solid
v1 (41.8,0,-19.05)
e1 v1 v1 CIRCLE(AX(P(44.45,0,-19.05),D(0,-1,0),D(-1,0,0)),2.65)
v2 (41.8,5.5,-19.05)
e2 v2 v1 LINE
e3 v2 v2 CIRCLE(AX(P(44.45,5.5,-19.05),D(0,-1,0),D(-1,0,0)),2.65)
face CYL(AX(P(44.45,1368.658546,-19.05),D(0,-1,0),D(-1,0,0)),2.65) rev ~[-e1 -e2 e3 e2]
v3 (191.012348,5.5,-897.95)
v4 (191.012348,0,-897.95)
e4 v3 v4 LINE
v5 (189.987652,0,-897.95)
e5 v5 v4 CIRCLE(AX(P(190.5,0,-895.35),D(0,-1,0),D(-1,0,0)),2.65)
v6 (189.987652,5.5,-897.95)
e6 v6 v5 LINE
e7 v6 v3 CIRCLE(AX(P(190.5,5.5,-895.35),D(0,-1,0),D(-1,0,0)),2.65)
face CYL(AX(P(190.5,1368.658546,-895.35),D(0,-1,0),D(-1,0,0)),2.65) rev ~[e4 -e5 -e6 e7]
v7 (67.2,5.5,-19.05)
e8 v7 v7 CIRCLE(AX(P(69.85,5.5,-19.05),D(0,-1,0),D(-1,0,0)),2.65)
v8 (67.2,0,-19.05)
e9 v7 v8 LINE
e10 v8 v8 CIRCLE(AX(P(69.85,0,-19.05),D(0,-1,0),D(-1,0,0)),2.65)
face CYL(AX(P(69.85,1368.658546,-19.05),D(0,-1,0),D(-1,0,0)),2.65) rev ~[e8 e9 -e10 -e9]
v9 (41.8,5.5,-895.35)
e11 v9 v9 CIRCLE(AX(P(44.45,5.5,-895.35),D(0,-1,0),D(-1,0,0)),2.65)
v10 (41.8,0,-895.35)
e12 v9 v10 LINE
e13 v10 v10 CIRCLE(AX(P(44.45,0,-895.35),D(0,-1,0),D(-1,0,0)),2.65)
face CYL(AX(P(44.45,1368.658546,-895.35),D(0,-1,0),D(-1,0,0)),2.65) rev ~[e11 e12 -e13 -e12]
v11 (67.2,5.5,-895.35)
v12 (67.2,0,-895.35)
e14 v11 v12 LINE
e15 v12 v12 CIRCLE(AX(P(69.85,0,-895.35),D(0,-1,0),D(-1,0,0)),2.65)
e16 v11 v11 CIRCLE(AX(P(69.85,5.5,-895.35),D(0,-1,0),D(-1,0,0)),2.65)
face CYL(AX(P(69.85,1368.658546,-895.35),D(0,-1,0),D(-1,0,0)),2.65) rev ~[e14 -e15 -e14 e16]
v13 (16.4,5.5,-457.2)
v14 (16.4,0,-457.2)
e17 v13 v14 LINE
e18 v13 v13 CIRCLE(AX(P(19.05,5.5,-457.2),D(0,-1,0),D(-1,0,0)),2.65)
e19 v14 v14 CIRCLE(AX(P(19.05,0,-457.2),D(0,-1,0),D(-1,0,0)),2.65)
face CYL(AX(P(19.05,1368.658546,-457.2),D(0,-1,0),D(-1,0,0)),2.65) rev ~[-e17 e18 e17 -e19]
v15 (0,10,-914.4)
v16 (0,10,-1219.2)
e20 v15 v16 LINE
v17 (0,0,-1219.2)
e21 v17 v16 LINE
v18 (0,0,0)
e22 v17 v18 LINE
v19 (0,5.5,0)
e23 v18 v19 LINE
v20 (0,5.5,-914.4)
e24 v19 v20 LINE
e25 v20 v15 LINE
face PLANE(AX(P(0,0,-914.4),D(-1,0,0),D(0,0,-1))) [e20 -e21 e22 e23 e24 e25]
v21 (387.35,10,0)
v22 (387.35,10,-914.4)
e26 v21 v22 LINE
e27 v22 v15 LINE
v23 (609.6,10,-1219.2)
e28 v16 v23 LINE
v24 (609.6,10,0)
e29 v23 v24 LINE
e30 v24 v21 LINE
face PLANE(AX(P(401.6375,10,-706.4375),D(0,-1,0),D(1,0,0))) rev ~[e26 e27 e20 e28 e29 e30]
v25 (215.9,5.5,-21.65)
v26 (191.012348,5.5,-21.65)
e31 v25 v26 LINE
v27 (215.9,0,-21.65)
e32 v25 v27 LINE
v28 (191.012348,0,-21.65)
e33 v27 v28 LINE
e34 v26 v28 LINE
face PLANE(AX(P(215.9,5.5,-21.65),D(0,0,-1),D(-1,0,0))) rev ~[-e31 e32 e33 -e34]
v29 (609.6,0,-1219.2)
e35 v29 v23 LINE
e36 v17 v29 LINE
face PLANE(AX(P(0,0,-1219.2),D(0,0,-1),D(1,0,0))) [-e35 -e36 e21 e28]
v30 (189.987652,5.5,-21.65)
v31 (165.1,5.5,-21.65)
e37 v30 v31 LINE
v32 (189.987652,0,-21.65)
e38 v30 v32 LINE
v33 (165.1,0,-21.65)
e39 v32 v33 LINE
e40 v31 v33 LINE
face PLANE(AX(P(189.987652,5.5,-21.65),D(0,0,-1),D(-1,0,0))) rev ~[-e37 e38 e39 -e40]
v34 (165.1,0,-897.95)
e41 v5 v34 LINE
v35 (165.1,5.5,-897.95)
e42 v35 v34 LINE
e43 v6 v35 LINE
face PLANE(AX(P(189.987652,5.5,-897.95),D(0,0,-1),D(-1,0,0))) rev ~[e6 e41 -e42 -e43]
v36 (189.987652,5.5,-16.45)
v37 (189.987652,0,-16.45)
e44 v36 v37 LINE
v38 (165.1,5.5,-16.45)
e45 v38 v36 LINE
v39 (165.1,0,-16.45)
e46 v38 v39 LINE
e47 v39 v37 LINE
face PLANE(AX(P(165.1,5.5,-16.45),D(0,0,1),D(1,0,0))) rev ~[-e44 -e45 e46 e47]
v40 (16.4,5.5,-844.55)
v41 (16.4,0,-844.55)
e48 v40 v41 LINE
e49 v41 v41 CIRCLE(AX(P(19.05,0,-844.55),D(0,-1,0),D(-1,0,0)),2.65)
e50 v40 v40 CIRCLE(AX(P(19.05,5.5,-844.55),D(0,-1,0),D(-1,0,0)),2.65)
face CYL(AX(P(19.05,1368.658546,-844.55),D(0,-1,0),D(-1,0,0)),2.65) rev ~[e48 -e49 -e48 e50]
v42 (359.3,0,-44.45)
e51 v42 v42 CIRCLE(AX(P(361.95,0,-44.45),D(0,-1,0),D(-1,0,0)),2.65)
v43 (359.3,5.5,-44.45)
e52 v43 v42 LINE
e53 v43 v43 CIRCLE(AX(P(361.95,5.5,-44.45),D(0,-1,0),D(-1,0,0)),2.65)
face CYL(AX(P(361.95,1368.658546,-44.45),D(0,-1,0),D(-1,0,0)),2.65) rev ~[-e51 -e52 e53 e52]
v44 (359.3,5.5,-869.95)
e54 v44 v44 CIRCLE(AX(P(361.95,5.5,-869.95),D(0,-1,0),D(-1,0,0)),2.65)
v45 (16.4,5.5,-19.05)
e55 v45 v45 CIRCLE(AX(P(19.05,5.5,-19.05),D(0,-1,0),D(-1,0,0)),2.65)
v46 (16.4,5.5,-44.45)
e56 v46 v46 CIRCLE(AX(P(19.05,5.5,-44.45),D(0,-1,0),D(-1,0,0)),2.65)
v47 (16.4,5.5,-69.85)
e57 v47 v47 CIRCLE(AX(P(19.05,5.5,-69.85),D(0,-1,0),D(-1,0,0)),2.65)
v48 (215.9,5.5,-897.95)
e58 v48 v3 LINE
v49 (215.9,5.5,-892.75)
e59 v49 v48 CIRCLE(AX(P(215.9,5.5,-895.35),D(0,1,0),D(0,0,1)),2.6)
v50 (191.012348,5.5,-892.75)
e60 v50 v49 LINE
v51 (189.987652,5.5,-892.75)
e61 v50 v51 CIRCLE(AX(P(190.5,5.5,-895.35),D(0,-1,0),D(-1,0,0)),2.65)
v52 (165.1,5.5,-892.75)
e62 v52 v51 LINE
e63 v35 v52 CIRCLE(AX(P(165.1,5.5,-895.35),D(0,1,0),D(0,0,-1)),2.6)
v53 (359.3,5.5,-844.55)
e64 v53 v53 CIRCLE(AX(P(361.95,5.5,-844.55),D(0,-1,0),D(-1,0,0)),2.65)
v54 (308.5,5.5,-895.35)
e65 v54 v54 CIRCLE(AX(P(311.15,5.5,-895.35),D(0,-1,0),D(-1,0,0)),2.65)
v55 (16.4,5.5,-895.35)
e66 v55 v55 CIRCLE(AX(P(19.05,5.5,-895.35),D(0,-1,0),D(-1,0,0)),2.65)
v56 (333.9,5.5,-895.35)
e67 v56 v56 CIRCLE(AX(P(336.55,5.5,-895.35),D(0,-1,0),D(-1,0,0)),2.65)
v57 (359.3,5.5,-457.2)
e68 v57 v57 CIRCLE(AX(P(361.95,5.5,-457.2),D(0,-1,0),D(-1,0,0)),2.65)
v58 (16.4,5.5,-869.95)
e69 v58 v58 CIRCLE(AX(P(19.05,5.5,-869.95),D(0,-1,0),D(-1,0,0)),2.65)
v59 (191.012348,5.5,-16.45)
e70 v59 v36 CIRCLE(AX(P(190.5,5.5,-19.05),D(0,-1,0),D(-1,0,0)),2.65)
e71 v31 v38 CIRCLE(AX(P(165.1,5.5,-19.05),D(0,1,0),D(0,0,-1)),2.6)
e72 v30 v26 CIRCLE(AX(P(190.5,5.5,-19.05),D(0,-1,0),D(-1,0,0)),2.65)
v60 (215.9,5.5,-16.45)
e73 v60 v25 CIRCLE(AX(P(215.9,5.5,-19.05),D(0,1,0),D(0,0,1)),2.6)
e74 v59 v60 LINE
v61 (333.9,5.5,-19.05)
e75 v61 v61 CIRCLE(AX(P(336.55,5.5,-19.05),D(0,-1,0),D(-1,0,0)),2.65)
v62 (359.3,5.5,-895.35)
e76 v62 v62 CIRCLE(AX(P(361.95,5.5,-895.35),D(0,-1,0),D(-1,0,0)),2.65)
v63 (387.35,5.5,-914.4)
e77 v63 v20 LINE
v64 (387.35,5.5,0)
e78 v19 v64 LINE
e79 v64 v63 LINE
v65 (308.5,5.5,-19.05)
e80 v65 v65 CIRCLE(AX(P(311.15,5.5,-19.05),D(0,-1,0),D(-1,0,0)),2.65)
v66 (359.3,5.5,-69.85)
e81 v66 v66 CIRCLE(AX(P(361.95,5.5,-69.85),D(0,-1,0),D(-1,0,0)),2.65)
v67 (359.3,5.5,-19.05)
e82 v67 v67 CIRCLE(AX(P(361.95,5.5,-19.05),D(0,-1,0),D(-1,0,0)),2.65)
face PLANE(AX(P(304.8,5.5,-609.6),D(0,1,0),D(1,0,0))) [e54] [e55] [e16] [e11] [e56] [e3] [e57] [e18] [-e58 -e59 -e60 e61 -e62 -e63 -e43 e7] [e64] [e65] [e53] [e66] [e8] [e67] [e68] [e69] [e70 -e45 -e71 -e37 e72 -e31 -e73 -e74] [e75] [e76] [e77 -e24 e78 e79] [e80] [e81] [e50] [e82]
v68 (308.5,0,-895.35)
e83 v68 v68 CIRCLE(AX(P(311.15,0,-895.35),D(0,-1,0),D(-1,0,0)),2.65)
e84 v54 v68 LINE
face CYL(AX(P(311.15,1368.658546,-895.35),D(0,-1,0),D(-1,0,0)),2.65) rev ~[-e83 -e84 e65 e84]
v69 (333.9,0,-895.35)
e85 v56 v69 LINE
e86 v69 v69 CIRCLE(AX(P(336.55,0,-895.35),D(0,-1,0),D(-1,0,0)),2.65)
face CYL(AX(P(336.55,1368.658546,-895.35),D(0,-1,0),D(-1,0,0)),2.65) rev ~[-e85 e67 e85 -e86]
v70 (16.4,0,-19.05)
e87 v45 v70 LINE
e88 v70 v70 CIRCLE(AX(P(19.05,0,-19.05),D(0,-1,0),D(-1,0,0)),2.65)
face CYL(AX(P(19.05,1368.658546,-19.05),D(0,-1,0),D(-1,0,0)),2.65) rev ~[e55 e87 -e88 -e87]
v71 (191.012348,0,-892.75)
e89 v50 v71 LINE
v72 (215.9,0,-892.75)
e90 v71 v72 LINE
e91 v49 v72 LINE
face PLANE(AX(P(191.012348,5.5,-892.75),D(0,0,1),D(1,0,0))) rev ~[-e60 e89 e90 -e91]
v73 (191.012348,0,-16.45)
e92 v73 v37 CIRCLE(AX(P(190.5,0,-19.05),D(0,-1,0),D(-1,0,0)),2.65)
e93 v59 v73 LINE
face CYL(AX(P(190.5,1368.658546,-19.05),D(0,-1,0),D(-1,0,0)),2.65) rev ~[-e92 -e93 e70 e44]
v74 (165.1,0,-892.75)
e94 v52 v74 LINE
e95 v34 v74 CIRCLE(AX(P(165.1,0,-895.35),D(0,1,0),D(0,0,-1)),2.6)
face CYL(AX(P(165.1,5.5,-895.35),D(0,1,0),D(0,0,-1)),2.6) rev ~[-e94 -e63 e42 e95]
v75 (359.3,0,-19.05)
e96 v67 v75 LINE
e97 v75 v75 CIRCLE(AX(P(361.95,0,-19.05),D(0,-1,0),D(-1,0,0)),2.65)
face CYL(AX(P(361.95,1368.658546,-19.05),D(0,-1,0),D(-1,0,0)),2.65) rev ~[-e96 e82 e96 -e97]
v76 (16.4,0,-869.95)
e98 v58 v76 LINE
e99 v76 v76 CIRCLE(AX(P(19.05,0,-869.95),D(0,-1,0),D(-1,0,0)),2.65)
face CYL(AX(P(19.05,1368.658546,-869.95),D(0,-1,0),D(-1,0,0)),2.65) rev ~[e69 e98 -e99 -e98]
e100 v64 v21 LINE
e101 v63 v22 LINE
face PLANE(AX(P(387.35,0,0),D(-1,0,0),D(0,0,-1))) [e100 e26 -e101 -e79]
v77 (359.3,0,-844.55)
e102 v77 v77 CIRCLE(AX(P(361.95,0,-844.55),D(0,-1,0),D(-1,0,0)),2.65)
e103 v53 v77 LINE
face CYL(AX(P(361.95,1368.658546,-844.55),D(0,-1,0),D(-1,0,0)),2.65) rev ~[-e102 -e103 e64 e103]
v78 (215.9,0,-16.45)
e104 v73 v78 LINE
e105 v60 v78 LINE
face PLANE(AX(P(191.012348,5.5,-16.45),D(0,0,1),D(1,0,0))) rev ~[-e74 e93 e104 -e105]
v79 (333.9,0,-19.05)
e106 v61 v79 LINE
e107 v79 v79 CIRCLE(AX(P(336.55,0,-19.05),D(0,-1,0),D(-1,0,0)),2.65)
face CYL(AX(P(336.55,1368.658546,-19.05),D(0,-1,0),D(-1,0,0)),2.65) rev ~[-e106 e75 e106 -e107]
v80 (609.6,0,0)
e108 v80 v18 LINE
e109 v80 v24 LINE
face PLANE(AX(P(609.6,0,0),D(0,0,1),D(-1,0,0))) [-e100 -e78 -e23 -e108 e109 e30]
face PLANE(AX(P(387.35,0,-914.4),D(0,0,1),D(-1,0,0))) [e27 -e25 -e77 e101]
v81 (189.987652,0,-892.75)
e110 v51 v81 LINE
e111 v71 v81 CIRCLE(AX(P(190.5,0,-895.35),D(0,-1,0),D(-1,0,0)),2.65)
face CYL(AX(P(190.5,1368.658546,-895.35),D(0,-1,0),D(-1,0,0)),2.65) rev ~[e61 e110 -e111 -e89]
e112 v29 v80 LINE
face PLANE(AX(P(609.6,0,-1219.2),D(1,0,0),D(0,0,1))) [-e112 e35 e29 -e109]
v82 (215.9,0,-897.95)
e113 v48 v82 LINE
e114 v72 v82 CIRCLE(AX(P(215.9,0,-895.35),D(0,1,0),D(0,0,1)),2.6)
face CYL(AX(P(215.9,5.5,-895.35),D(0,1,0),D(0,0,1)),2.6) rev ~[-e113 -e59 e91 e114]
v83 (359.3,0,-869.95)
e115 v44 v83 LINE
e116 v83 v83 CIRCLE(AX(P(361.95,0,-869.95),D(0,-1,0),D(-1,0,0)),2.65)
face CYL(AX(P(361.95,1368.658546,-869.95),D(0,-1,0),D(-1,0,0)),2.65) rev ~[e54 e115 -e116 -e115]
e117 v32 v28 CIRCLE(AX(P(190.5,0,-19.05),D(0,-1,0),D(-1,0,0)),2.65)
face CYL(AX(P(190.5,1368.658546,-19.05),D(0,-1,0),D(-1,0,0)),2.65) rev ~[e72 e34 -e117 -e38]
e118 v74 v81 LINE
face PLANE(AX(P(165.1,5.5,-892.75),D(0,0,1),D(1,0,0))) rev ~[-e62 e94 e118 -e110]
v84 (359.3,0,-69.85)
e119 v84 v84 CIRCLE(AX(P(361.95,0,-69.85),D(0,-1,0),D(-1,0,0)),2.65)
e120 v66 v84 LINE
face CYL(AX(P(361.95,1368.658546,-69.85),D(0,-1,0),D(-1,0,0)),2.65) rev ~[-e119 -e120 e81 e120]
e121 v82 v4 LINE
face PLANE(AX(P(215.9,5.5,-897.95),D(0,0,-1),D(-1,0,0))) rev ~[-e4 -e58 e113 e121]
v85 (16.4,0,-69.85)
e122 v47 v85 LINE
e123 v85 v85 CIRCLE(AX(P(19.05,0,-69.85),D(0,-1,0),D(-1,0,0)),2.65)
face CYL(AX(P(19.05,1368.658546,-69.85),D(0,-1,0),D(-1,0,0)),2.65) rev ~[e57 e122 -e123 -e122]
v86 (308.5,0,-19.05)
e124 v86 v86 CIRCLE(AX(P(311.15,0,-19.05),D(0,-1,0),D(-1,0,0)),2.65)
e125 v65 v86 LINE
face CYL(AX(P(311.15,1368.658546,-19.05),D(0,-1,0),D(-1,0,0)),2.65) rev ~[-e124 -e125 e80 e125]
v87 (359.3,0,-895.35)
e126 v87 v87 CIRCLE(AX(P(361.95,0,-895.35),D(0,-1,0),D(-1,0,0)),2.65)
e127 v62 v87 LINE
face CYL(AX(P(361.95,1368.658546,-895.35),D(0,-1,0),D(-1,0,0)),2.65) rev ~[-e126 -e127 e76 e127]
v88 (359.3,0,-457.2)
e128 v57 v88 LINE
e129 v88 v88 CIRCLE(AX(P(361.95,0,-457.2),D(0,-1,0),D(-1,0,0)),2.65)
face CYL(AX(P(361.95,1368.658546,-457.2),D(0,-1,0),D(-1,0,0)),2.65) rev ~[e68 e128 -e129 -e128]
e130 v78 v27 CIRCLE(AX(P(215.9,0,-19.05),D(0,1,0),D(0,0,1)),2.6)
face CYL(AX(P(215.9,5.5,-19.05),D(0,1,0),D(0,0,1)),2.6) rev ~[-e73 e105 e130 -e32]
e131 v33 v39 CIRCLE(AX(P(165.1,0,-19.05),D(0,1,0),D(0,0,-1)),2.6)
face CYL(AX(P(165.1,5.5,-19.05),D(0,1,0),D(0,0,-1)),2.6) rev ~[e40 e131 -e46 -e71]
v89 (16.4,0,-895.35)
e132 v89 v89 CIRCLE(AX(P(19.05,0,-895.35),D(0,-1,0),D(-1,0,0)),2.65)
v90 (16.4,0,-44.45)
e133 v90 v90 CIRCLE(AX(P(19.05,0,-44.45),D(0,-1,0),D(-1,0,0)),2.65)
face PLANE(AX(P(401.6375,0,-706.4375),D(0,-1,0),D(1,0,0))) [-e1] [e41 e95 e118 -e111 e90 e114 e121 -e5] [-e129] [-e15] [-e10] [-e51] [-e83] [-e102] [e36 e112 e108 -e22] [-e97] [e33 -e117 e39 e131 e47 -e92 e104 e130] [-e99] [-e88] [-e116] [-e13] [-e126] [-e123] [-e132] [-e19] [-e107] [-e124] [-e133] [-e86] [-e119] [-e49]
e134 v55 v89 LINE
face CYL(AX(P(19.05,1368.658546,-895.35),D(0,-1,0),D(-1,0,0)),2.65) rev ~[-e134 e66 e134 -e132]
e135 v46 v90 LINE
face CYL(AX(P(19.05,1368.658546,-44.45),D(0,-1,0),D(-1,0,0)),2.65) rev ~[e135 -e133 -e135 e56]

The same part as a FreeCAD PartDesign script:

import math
import FreeCAD as App
import Part
import Sketcher

V = App.Vector
Q = App.Units.Quantity

doc = App.newDocument("Part")
params = doc.addObject("Spreadsheet::Sheet", "Params")
for row, (alias, value) in enumerate([
    ("sketch1_width", "24 in"),
    ("sketch1_height", "48 in"),
    ("pad1_length", "5.5 mm"),
    ("sketch2_width", "24 in"),
    ("sketch2_height", "36 in"),
    ("sketch2_height2", "48 in"),
    ("sketch2_width2", "8.75 in"),
    ("pad2_length", "0.25 in"),
    ("hole_diameter", "5.3 mm"),
    ("sketch4_width", "24 in"),
    ("sketch4_height", "12 in"),
    ("sketch4_height2", "36 in"),
    ("sketch4_width2", "15.25 in"),
    ("sketch6_width", "24 in"),
    ("sketch6_height", "48 in"),
    ("sketch6_height2", "36 in"),
    ("sketch6_width2", "8.75 in"),
    ("pad3_length", "10 mm"),
], start=1):
    params.set(f"A{row}", alias)
    params.set(f"B{row}", "=" + value)
    params.setAlias(f"B{row}", alias)

body = doc.addObject("PartDesign::Body", "Body")

# Sketch on XZ plane
sketch1 = body.newObject("Sketcher::SketchObject", "Sketch")
sketch1.AttachmentSupport = (doc.getObject("XZ_Plane"), [""])
sketch1.MapMode = "FlatFace"
sketch1.addGeometry(Part.LineSegment(V(0, -1219, 0), V(0, 0, 0)), False)
sketch1.addGeometry(Part.LineSegment(V(0, 0, 0), V(610, 0, 0)), False)
sketch1.addGeometry(Part.LineSegment(V(610, 0, 0), V(610, -1219, 0)), False)
sketch1.addGeometry(Part.LineSegment(V(610, -1219, 0), V(0, -1219, 0)), False)
sketch1.addConstraint(Sketcher.Constraint("Coincident", 0, 2, 1, 1))
sketch1.addConstraint(Sketcher.Constraint("Coincident", 1, 2, 2, 1))
sketch1.addConstraint(Sketcher.Constraint("Coincident", 2, 2, 3, 1))
sketch1.addConstraint(Sketcher.Constraint("Coincident", 3, 2, 0, 1))
sketch1.addConstraint(Sketcher.Constraint("Vertical", 0))
sketch1.addConstraint(Sketcher.Constraint("Horizontal", 1))
sketch1.addConstraint(Sketcher.Constraint("Vertical", 2))
sketch1.addConstraint(Sketcher.Constraint("Horizontal", 3))
sketch1.addConstraint(Sketcher.Constraint("Coincident", 0, 2, -1, 1))
sketch1.addConstraint(Sketcher.Constraint("DistanceX", 1, 1, 1, 2, Q("24 in")))
sketch1.addConstraint(Sketcher.Constraint("DistanceY", 0, 1, 0, 2, Q("48 in")))
sketch1.setExpression("Constraints[9]", "Params.sketch1_width")
sketch1.setExpression("Constraints[10]", "Params.sketch1_height")
pad1 = body.newObject("PartDesign::Pad", "Pad")
pad1.Profile = sketch1
pad1.setExpression("Length", "Params.pad1_length")
pad1.Reversed = True

# Sketch on XZ plane
sketch2 = body.newObject("Sketcher::SketchObject", "Sketch001")
sketch2.AttachmentSupport = (doc.getObject("XZ_Plane"), [""])
sketch2.MapMode = "FlatFace"
sketch2.AttachmentOffset = App.Placement(V(0, 0, -5.5), App.Rotation())
sketch2.addGeometry(Part.LineSegment(V(387, -914, 0), V(387, 0, 0)), False)
sketch2.addGeometry(Part.LineSegment(V(387, 0, 0), V(610, 0, 0)), False)
sketch2.addGeometry(Part.LineSegment(V(610, 0, 0), V(610, -1219, 0)), False)
sketch2.addGeometry(Part.LineSegment(V(610, -1219, 0), V(0, -1219, 0)), False)
sketch2.addGeometry(Part.LineSegment(V(0, -1219, 0), V(0, -914, 0)), False)
sketch2.addGeometry(Part.LineSegment(V(0, -914, 0), V(387, -914, 0)), False)
sketch2.addConstraint(Sketcher.Constraint("Coincident", 0, 2, 1, 1))
sketch2.addConstraint(Sketcher.Constraint("Coincident", 1, 2, 2, 1))
sketch2.addConstraint(Sketcher.Constraint("Coincident", 2, 2, 3, 1))
sketch2.addConstraint(Sketcher.Constraint("Coincident", 3, 2, 4, 1))
sketch2.addConstraint(Sketcher.Constraint("Coincident", 4, 2, 5, 1))
sketch2.addConstraint(Sketcher.Constraint("Coincident", 5, 2, 0, 1))
sketch2.addConstraint(Sketcher.Constraint("Vertical", 0))
sketch2.addConstraint(Sketcher.Constraint("Horizontal", 1))
sketch2.addConstraint(Sketcher.Constraint("Vertical", 2))
sketch2.addConstraint(Sketcher.Constraint("Horizontal", 3))
sketch2.addConstraint(Sketcher.Constraint("Vertical", 4))
sketch2.addConstraint(Sketcher.Constraint("Horizontal", 5))
sketch2.addConstraint(Sketcher.Constraint("PointOnObject", 0, 2, -1))
sketch2.addConstraint(Sketcher.Constraint("PointOnObject", 3, 2, -2))
sketch2.addConstraint(Sketcher.Constraint("DistanceX", 3, 2, 3, 1, Q("24 in")))
sketch2.addConstraint(Sketcher.Constraint("DistanceY", 0, 1, 0, 2, Q("36 in")))
sketch2.addConstraint(Sketcher.Constraint("DistanceY", 2, 2, 2, 1, Q("48 in")))
sketch2.addConstraint(Sketcher.Constraint("DistanceX", 1, 1, 1, 2, Q("8.75 in")))
sketch2.setExpression("Constraints[14]", "Params.sketch2_width")
sketch2.setExpression("Constraints[15]", "Params.sketch2_height")
sketch2.setExpression("Constraints[16]", "Params.sketch2_height2")
sketch2.setExpression("Constraints[17]", "Params.sketch2_width2")
pad2 = body.newObject("PartDesign::Pad", "Pad001")
pad2.Profile = sketch2
pad2.setExpression("Length", "Params.pad2_length")
pad2.Reversed = True

# Sketch on XZ plane
sketch3 = body.newObject("Sketcher::SketchObject", "Sketch002")
sketch3.AttachmentSupport = (doc.getObject("XZ_Plane"), [""])
sketch3.MapMode = "FlatFace"
sketch3.AttachmentOffset = App.Placement(V(0, 0, -5.5), App.Rotation())
sketch3.addGeometry(Part.Circle(V(19.1, -895.4, 0), V(0, 0, 1), 2.6), False)
sketch3.addGeometry(Part.Circle(V(44.5, -895.4, 0), V(0, 0, 1), 2.6), False)
sketch3.addGeometry(Part.Circle(V(69.8, -895.4, 0), V(0, 0, 1), 2.6), False)
sketch3.addGeometry(Part.Circle(V(19.1, -870, 0), V(0, 0, 1), 2.6), False)
sketch3.addGeometry(Part.Circle(V(19.1, -844.5, 0), V(0, 0, 1), 2.6), False)
sketch3.addGeometry(Part.Circle(V(19.1, -457.2, 0), V(0, 0, 1), 2.6), False)
sketch3.addGeometry(Part.Circle(V(19.1, -69.8, 0), V(0, 0, 1), 2.6), False)
sketch3.addGeometry(Part.Circle(V(19.1, -44.5, 0), V(0, 0, 1), 2.6), False)
sketch3.addGeometry(Part.Circle(V(19.1, -19.1, 0), V(0, 0, 1), 2.6), False)
sketch3.addGeometry(Part.Circle(V(44.5, -19.1, 0), V(0, 0, 1), 2.6), False)
sketch3.addGeometry(Part.Circle(V(69.8, -19.1, 0), V(0, 0, 1), 2.6), False)
sketch3.addGeometry(Part.Circle(V(190.5, -19.1, 0), V(0, 0, 1), 2.6), False)
sketch3.addGeometry(Part.Circle(V(311.1, -19.1, 0), V(0, 0, 1), 2.6), False)
sketch3.addGeometry(Part.Circle(V(336.6, -19.1, 0), V(0, 0, 1), 2.6), False)
sketch3.addGeometry(Part.Circle(V(361.9, -19.1, 0), V(0, 0, 1), 2.6), False)
sketch3.addGeometry(Part.Circle(V(361.9, -44.5, 0), V(0, 0, 1), 2.6), False)
sketch3.addGeometry(Part.Circle(V(361.9, -69.8, 0), V(0, 0, 1), 2.6), False)
sketch3.addGeometry(Part.Circle(V(361.9, -457.2, 0), V(0, 0, 1), 2.6), False)
sketch3.addGeometry(Part.Circle(V(361.9, -844.5, 0), V(0, 0, 1), 2.6), False)
sketch3.addGeometry(Part.Circle(V(361.9, -870, 0), V(0, 0, 1), 2.6), False)
sketch3.addGeometry(Part.Circle(V(361.9, -895.4, 0), V(0, 0, 1), 2.6), False)
sketch3.addGeometry(Part.Circle(V(336.6, -895.4, 0), V(0, 0, 1), 2.6), False)
sketch3.addGeometry(Part.Circle(V(311.1, -895.4, 0), V(0, 0, 1), 2.6), False)
sketch3.addGeometry(Part.Circle(V(190.5, -895.4, 0), V(0, 0, 1), 2.6), False)
sketch3.addConstraint(Sketcher.Constraint("Equal", 0, 1))
sketch3.addConstraint(Sketcher.Constraint("Equal", 1, 2))
sketch3.addConstraint(Sketcher.Constraint("Equal", 2, 3))
sketch3.addConstraint(Sketcher.Constraint("Equal", 3, 4))
sketch3.addConstraint(Sketcher.Constraint("Equal", 4, 5))
sketch3.addConstraint(Sketcher.Constraint("Equal", 5, 6))
sketch3.addConstraint(Sketcher.Constraint("Equal", 6, 7))
sketch3.addConstraint(Sketcher.Constraint("Equal", 7, 8))
sketch3.addConstraint(Sketcher.Constraint("Equal", 8, 9))
sketch3.addConstraint(Sketcher.Constraint("Equal", 9, 10))
sketch3.addConstraint(Sketcher.Constraint("Equal", 10, 11))
sketch3.addConstraint(Sketcher.Constraint("Equal", 11, 12))
sketch3.addConstraint(Sketcher.Constraint("Equal", 12, 13))
sketch3.addConstraint(Sketcher.Constraint("Equal", 13, 14))
sketch3.addConstraint(Sketcher.Constraint("Equal", 14, 15))
sketch3.addConstraint(Sketcher.Constraint("Equal", 15, 16))
sketch3.addConstraint(Sketcher.Constraint("Equal", 16, 17))
sketch3.addConstraint(Sketcher.Constraint("Equal", 17, 18))
sketch3.addConstraint(Sketcher.Constraint("Equal", 18, 19))
sketch3.addConstraint(Sketcher.Constraint("Equal", 19, 20))
sketch3.addConstraint(Sketcher.Constraint("Equal", 20, 21))
sketch3.addConstraint(Sketcher.Constraint("Equal", 21, 22))
sketch3.addConstraint(Sketcher.Constraint("Equal", 22, 23))
sketch3.addConstraint(Sketcher.Constraint("Horizontal", 0, 3, 1, 3))
sketch3.addConstraint(Sketcher.Constraint("Horizontal", 1, 3, 2, 3))
sketch3.addConstraint(Sketcher.Constraint("Horizontal", 8, 3, 9, 3))
sketch3.addConstraint(Sketcher.Constraint("Horizontal", 9, 3, 10, 3))
sketch3.addConstraint(Sketcher.Constraint("Horizontal", 10, 3, 11, 3))
sketch3.addConstraint(Sketcher.Constraint("Horizontal", 11, 3, 12, 3))
sketch3.addConstraint(Sketcher.Constraint("Horizontal", 12, 3, 13, 3))
sketch3.addConstraint(Sketcher.Constraint("Horizontal", 13, 3, 14, 3))
sketch3.addConstraint(Sketcher.Constraint("Horizontal", 7, 3, 15, 3))
sketch3.addConstraint(Sketcher.Constraint("Horizontal", 6, 3, 16, 3))
sketch3.addConstraint(Sketcher.Constraint("Horizontal", 5, 3, 17, 3))
sketch3.addConstraint(Sketcher.Constraint("Horizontal", 4, 3, 18, 3))
sketch3.addConstraint(Sketcher.Constraint("Horizontal", 3, 3, 19, 3))
sketch3.addConstraint(Sketcher.Constraint("Horizontal", 2, 3, 20, 3))
sketch3.addConstraint(Sketcher.Constraint("Horizontal", 20, 3, 21, 3))
sketch3.addConstraint(Sketcher.Constraint("Horizontal", 21, 3, 22, 3))
sketch3.addConstraint(Sketcher.Constraint("Horizontal", 22, 3, 23, 3))
sketch3.addConstraint(Sketcher.Constraint("Vertical", 0, 3, 3, 3))
sketch3.addConstraint(Sketcher.Constraint("Vertical", 3, 3, 4, 3))
sketch3.addConstraint(Sketcher.Constraint("Vertical", 4, 3, 5, 3))
sketch3.addConstraint(Sketcher.Constraint("Vertical", 5, 3, 6, 3))
sketch3.addConstraint(Sketcher.Constraint("Vertical", 6, 3, 7, 3))
sketch3.addConstraint(Sketcher.Constraint("Vertical", 7, 3, 8, 3))
sketch3.addConstraint(Sketcher.Constraint("Vertical", 1, 3, 9, 3))
sketch3.addConstraint(Sketcher.Constraint("Vertical", 2, 3, 10, 3))
sketch3.addConstraint(Sketcher.Constraint("Vertical", 14, 3, 15, 3))
sketch3.addConstraint(Sketcher.Constraint("Vertical", 15, 3, 16, 3))
sketch3.addConstraint(Sketcher.Constraint("Vertical", 16, 3, 17, 3))
sketch3.addConstraint(Sketcher.Constraint("Vertical", 17, 3, 18, 3))
sketch3.addConstraint(Sketcher.Constraint("Vertical", 18, 3, 19, 3))
sketch3.addConstraint(Sketcher.Constraint("Vertical", 19, 3, 20, 3))
sketch3.addConstraint(Sketcher.Constraint("Vertical", 13, 3, 21, 3))
sketch3.addConstraint(Sketcher.Constraint("Vertical", 12, 3, 22, 3))
sketch3.addConstraint(Sketcher.Constraint("Vertical", 11, 3, 23, 3))
sketch3.addConstraint(Sketcher.Constraint("DistanceY", 5, 3, -1, 1, Q("18 in")))
sketch3.addConstraint(Sketcher.Constraint("DistanceX", 0, 3, 1, 3, Q("1 in")))
sketch3.addConstraint(Sketcher.Constraint("DistanceX", 1, 3, 2, 3, Q("1 in")))
sketch3.addConstraint(Sketcher.Constraint("DistanceY", 0, 3, 3, 3, Q("1 in")))
sketch3.addConstraint(Sketcher.Constraint("DistanceY", 3, 3, 4, 3, Q("1 in")))
sketch3.addConstraint(Sketcher.Constraint("DistanceY", 6, 3, 7, 3, Q("1 in")))
sketch3.addConstraint(Sketcher.Constraint("DistanceY", 7, 3, 8, 3, Q("1 in")))
sketch3.addConstraint(Sketcher.Constraint("DistanceX", 12, 3, 13, 3, Q("1 in")))
sketch3.addConstraint(Sketcher.Constraint("DistanceX", 13, 3, 14, 3, Q("1 in")))
sketch3.addConstraint(Sketcher.Constraint("DistanceX", -1, 1, 11, 3, Q("7.5 in")))
sketch3.addConstraint(Sketcher.Constraint("DistanceY", 4, 3, 6, 3, Q("30.5 in")))
sketch3.addConstraint(Sketcher.Constraint("DistanceX", 10, 3, 12, 3, Q("9.5 in")))
sketch3.addConstraint(Sketcher.Constraint("Diameter", 0, Q("5.3 mm")))
sketch3.addConstraint(Sketcher.Constraint("DistanceX", -1, 1, 0, 3, Q("0.75 in")))
sketch3.addConstraint(Sketcher.Constraint("DistanceY", 0, 3, -1, 1, Q("35.25 in")))
doc.recompute()
hole = body.newObject("PartDesign::Hole", "Hole")
hole.Profile = sketch3
hole.ThreadType = "None"
hole.setExpression("Diameter", "Params.hole_diameter")
hole.DepthType = "ThroughAll"
hole.Reversed = True

# Sketch on XZ plane
sketch4 = body.newObject("Sketcher::SketchObject", "Sketch003")
sketch4.AttachmentSupport = (doc.getObject("XZ_Plane"), [""])
sketch4.MapMode = "FlatFace"
sketch4.AttachmentOffset = App.Placement(V(0, 0, -11.85), App.Rotation())
sketch4.addGeometry(Part.LineSegment(V(0, -1219, 0), V(0, -914, 0)), False)
sketch4.addGeometry(Part.LineSegment(V(0, -914, 0), V(387, -914, 0)), False)
sketch4.addGeometry(Part.LineSegment(V(387, -914, 0), V(387, 0, 0)), False)
sketch4.addGeometry(Part.LineSegment(V(387, 0, 0), V(610, 0, 0)), False)
sketch4.addGeometry(Part.LineSegment(V(610, 0, 0), V(610, -1219, 0)), False)
sketch4.addGeometry(Part.LineSegment(V(610, -1219, 0), V(0, -1219, 0)), False)
sketch4.addConstraint(Sketcher.Constraint("Coincident", 0, 2, 1, 1))
sketch4.addConstraint(Sketcher.Constraint("Coincident", 1, 2, 2, 1))
sketch4.addConstraint(Sketcher.Constraint("Coincident", 2, 2, 3, 1))
sketch4.addConstraint(Sketcher.Constraint("Coincident", 3, 2, 4, 1))
sketch4.addConstraint(Sketcher.Constraint("Coincident", 4, 2, 5, 1))
sketch4.addConstraint(Sketcher.Constraint("Coincident", 5, 2, 0, 1))
sketch4.addConstraint(Sketcher.Constraint("Vertical", 0))
sketch4.addConstraint(Sketcher.Constraint("Horizontal", 1))
sketch4.addConstraint(Sketcher.Constraint("Vertical", 2))
sketch4.addConstraint(Sketcher.Constraint("Horizontal", 3))
sketch4.addConstraint(Sketcher.Constraint("Vertical", 4))
sketch4.addConstraint(Sketcher.Constraint("Horizontal", 5))
sketch4.addConstraint(Sketcher.Constraint("PointOnObject", 0, 2, -2))
sketch4.addConstraint(Sketcher.Constraint("PointOnObject", 2, 2, -1))
sketch4.addConstraint(Sketcher.Constraint("DistanceX", 5, 2, 5, 1, Q("24 in")))
sketch4.addConstraint(Sketcher.Constraint("DistanceY", 0, 1, 0, 2, Q("12 in")))
sketch4.addConstraint(Sketcher.Constraint("DistanceY", 2, 1, 2, 2, Q("36 in")))
sketch4.addConstraint(Sketcher.Constraint("DistanceX", 1, 1, 1, 2, Q("15.25 in")))
sketch4.setExpression("Constraints[14]", "Params.sketch4_width")
sketch4.setExpression("Constraints[15]", "Params.sketch4_height")
sketch4.setExpression("Constraints[16]", "Params.sketch4_height2")
sketch4.setExpression("Constraints[17]", "Params.sketch4_width2")
pocket1 = body.newObject("PartDesign::Pocket", "Pocket")
pocket1.Profile = sketch4
pocket1.Type = "UpToFirst"
pocket1.Reversed = True

# Sketch on XZ plane
sketch5 = body.newObject("Sketcher::SketchObject", "Sketch004")
sketch5.AttachmentSupport = (doc.getObject("XZ_Plane"), [""])
sketch5.MapMode = "FlatFace"
sketch5.AttachmentOffset = App.Placement(V(0, 0, -5.5), App.Rotation())
sketch5.addGeometry(Part.ArcOfCircle(Part.Circle(V(190.5, -19.1, 0), V(0, 0, 1), 2.6), math.radians(101), math.radians(259)), False)
sketch5.addGeometry(Part.LineSegment(V(190, -21.6, 0), V(165.1, -21.6, 0)), False)
sketch5.addGeometry(Part.ArcOfCircle(Part.Circle(V(165.1, -19.1, 0), V(0, 0, 1), 2.6), math.radians(90), math.radians(270)), False)
sketch5.addGeometry(Part.LineSegment(V(165.1, -16.4, 0), V(190, -16.4, 0)), False)
sketch5.addGeometry(Part.Circle(V(190.5, -19.1, 0), V(0, 0, 1), 2.6), False)
sketch5.addGeometry(Part.LineSegment(V(215.9, -21.6, 0), V(191, -21.6, 0)), False)
sketch5.addGeometry(Part.ArcOfCircle(Part.Circle(V(190.5, -19, 0), V(0, 0, 1), 2.7), math.radians(-79), math.radians(0)), False)
sketch5.addGeometry(Part.ArcOfCircle(Part.Circle(V(190.5, -19.1, 0), V(0, 0, 1), 2.7), math.radians(0), math.radians(79)), False)
sketch5.addGeometry(Part.LineSegment(V(191, -16.4, 0), V(215.9, -16.4, 0)), False)
sketch5.addGeometry(Part.ArcOfCircle(Part.Circle(V(215.9, -19.1, 0), V(0, 0, 1), 2.6), math.radians(-90), math.radians(90)), False)
sketch5.addGeometry(Part.ArcOfCircle(Part.Circle(V(165.1, -895.4, 0), V(0, 0, 1), 2.6), math.radians(90), math.radians(270)), False)
sketch5.addGeometry(Part.LineSegment(V(165.1, -892.8, 0), V(190, -892.8, 0)), False)
sketch5.addGeometry(Part.ArcOfCircle(Part.Circle(V(190.5, -895.4, 0), V(0, 0, 1), 2.6), math.radians(101), math.radians(259)), False)
sketch5.addGeometry(Part.LineSegment(V(190, -898, 0), V(165.1, -898, 0)), False)
sketch5.addGeometry(Part.Circle(V(190.5, -895.4, 0), V(0, 0, 1), 2.6), False)
sketch5.addGeometry(Part.ArcOfCircle(Part.Circle(V(190.5, -895.4, 0), V(0, 0, 1), 2.7), math.radians(0), math.radians(79)), False)
sketch5.addGeometry(Part.LineSegment(V(191, -892.8, 0), V(215.9, -892.8, 0)), False)
sketch5.addGeometry(Part.ArcOfCircle(Part.Circle(V(215.9, -895.4, 0), V(0, 0, 1), 2.6), math.radians(-90), math.radians(90)), False)
sketch5.addGeometry(Part.LineSegment(V(215.9, -898, 0), V(191, -898, 0)), False)
sketch5.addGeometry(Part.ArcOfCircle(Part.Circle(V(190.5, -895.3, 0), V(0, 0, 1), 2.7), math.radians(-79), math.radians(0)), False)
sketch5.addConstraint(Sketcher.Constraint("Coincident", 0, 2, 1, 1))
sketch5.addConstraint(Sketcher.Constraint("Tangent", 1, 2, 2, 2))
sketch5.addConstraint(Sketcher.Constraint("Tangent", 2, 1, 3, 1))
sketch5.addConstraint(Sketcher.Constraint("Coincident", 3, 2, 0, 1))
sketch5.addConstraint(Sketcher.Constraint("Coincident", 5, 2, 6, 1))
sketch5.addConstraint(Sketcher.Constraint("Tangent", 6, 2, 7, 1))
sketch5.addConstraint(Sketcher.Constraint("Coincident", 7, 2, 8, 1))
sketch5.addConstraint(Sketcher.Constraint("Tangent", 8, 2, 9, 2))
sketch5.addConstraint(Sketcher.Constraint("Tangent", 9, 1, 5, 1))
sketch5.addConstraint(Sketcher.Constraint("Tangent", 10, 1, 11, 1))
sketch5.addConstraint(Sketcher.Constraint("Coincident", 11, 2, 12, 1))
sketch5.addConstraint(Sketcher.Constraint("Coincident", 12, 2, 13, 1))
sketch5.addConstraint(Sketcher.Constraint("Tangent", 13, 2, 10, 2))
sketch5.addConstraint(Sketcher.Constraint("Coincident", 15, 2, 16, 1))
sketch5.addConstraint(Sketcher.Constraint("Tangent", 16, 2, 17, 2))
sketch5.addConstraint(Sketcher.Constraint("Tangent", 17, 1, 18, 1))
sketch5.addConstraint(Sketcher.Constraint("Coincident", 18, 2, 19, 1))
sketch5.addConstraint(Sketcher.Constraint("Tangent", 19, 2, 15, 1))
sketch5.addConstraint(Sketcher.Constraint("Horizontal", 1))
sketch5.addConstraint(Sketcher.Constraint("Horizontal", 3))
sketch5.addConstraint(Sketcher.Constraint("Horizontal", 5))
sketch5.addConstraint(Sketcher.Constraint("Horizontal", 8))
sketch5.addConstraint(Sketcher.Constraint("Horizontal", 11))
sketch5.addConstraint(Sketcher.Constraint("Horizontal", 13))
sketch5.addConstraint(Sketcher.Constraint("Horizontal", 16))
sketch5.addConstraint(Sketcher.Constraint("Horizontal", 18))
sketch5.addConstraint(Sketcher.Constraint("Coincident", 4, 3, 0, 3))
sketch5.addConstraint(Sketcher.Constraint("Coincident", 6, 3, 0, 3))
sketch5.addConstraint(Sketcher.Constraint("Coincident", 14, 3, 12, 3))
sketch5.addConstraint(Sketcher.Constraint("Coincident", 15, 3, 12, 3))
sketch5.addConstraint(Sketcher.Constraint("Equal", 2, 4))
sketch5.addConstraint(Sketcher.Constraint("Equal", 0, 6))
sketch5.addConstraint(Sketcher.Constraint("Equal", 6, 7))
sketch5.addConstraint(Sketcher.Constraint("Equal", 4, 9))
sketch5.addConstraint(Sketcher.Constraint("Equal", 9, 10))
sketch5.addConstraint(Sketcher.Constraint("Equal", 7, 12))
sketch5.addConstraint(Sketcher.Constraint("Equal", 10, 14))
sketch5.addConstraint(Sketcher.Constraint("Equal", 12, 15))
sketch5.addConstraint(Sketcher.Constraint("Equal", 14, 17))
sketch5.addConstraint(Sketcher.Constraint("Equal", 15, 19))
sketch5.addConstraint(Sketcher.Constraint("Horizontal", 0, 3, 2, 3))
sketch5.addConstraint(Sketcher.Constraint("Horizontal", 7, 3, 9, 3))
sketch5.addConstraint(Sketcher.Constraint("Horizontal", 10, 3, 12, 3))
sketch5.addConstraint(Sketcher.Constraint("Horizontal", 15, 3, 17, 3))
sketch5.addConstraint(Sketcher.Constraint("Horizontal", 9, 3, 6, 2))
sketch5.addConstraint(Sketcher.Constraint("Horizontal", 17, 3, 19, 2))
sketch5.addConstraint(Sketcher.Constraint("Vertical", 2, 3, 10, 3))
sketch5.addConstraint(Sketcher.Constraint("Vertical", 7, 3, 12, 3))
sketch5.addConstraint(Sketcher.Constraint("Vertical", 9, 3, 17, 3))
sketch5.addConstraint(Sketcher.Constraint("Equal", 3, 5))
sketch5.addConstraint(Sketcher.Constraint("DistanceX", 2, 3, 0, 3, Q("1 in")))
sketch5.addConstraint(Sketcher.Constraint("DistanceX", -1, 1, 0, 3, Q("7.5 in")))
sketch5.addConstraint(Sketcher.Constraint("DistanceY", 10, 3, 2, 3, Q("34.5 in")))
sketch5.addConstraint(Sketcher.Constraint("Diameter", 4, Q("5.2 mm")))
sketch5.addConstraint(Sketcher.Constraint("DistanceY", 0, 3, -1, 1, Q("0.75 in")))
sketch5.addConstraint(Sketcher.Constraint("Radius", 0, Q("2.65 mm")))
pocket2 = body.newObject("PartDesign::Pocket", "Pocket001")
pocket2.Profile = sketch5
pocket2.Type = "ThroughAll"
pocket2.Reversed = True

# Sketch on XZ plane
sketch6 = body.newObject("Sketcher::SketchObject", "Sketch005")
sketch6.AttachmentSupport = (doc.getObject("XZ_Plane"), [""])
sketch6.MapMode = "FlatFace"
sketch6.addGeometry(Part.LineSegment(V(0, -1219, 0), V(610, -1219, 0)), False)
sketch6.addGeometry(Part.LineSegment(V(610, -1219, 0), V(610, 0, 0)), False)
sketch6.addGeometry(Part.LineSegment(V(610, 0, 0), V(387, 0, 0)), False)
sketch6.addGeometry(Part.LineSegment(V(387, 0, 0), V(387, -914, 0)), False)
sketch6.addGeometry(Part.LineSegment(V(387, -914, 0), V(0, -914, 0)), False)
sketch6.addGeometry(Part.LineSegment(V(0, -914, 0), V(0, -1219, 0)), False)
sketch6.addConstraint(Sketcher.Constraint("Coincident", 0, 2, 1, 1))
sketch6.addConstraint(Sketcher.Constraint("Coincident", 1, 2, 2, 1))
sketch6.addConstraint(Sketcher.Constraint("Coincident", 2, 2, 3, 1))
sketch6.addConstraint(Sketcher.Constraint("Coincident", 3, 2, 4, 1))
sketch6.addConstraint(Sketcher.Constraint("Coincident", 4, 2, 5, 1))
sketch6.addConstraint(Sketcher.Constraint("Coincident", 5, 2, 0, 1))
sketch6.addConstraint(Sketcher.Constraint("Horizontal", 0))
sketch6.addConstraint(Sketcher.Constraint("Vertical", 1))
sketch6.addConstraint(Sketcher.Constraint("Horizontal", 2))
sketch6.addConstraint(Sketcher.Constraint("Vertical", 3))
sketch6.addConstraint(Sketcher.Constraint("Horizontal", 4))
sketch6.addConstraint(Sketcher.Constraint("Vertical", 5))
sketch6.addConstraint(Sketcher.Constraint("PointOnObject", 1, 2, -1))
sketch6.addConstraint(Sketcher.Constraint("PointOnObject", 4, 2, -2))
sketch6.addConstraint(Sketcher.Constraint("DistanceX", 0, 1, 0, 2, Q("24 in")))
sketch6.addConstraint(Sketcher.Constraint("DistanceY", 1, 1, 1, 2, Q("48 in")))
sketch6.addConstraint(Sketcher.Constraint("DistanceY", 3, 2, 3, 1, Q("36 in")))
sketch6.addConstraint(Sketcher.Constraint("DistanceX", 2, 2, 2, 1, Q("8.75 in")))
sketch6.setExpression("Constraints[14]", "Params.sketch6_width")
sketch6.setExpression("Constraints[15]", "Params.sketch6_height")
sketch6.setExpression("Constraints[16]", "Params.sketch6_height2")
sketch6.setExpression("Constraints[17]", "Params.sketch6_width2")
pad3 = body.newObject("PartDesign::Pad", "Pad002")
pad3.Profile = sketch6
pad3.setExpression("Length", "Params.pad3_length")
pad3.Reversed = True

doc.recompute()
